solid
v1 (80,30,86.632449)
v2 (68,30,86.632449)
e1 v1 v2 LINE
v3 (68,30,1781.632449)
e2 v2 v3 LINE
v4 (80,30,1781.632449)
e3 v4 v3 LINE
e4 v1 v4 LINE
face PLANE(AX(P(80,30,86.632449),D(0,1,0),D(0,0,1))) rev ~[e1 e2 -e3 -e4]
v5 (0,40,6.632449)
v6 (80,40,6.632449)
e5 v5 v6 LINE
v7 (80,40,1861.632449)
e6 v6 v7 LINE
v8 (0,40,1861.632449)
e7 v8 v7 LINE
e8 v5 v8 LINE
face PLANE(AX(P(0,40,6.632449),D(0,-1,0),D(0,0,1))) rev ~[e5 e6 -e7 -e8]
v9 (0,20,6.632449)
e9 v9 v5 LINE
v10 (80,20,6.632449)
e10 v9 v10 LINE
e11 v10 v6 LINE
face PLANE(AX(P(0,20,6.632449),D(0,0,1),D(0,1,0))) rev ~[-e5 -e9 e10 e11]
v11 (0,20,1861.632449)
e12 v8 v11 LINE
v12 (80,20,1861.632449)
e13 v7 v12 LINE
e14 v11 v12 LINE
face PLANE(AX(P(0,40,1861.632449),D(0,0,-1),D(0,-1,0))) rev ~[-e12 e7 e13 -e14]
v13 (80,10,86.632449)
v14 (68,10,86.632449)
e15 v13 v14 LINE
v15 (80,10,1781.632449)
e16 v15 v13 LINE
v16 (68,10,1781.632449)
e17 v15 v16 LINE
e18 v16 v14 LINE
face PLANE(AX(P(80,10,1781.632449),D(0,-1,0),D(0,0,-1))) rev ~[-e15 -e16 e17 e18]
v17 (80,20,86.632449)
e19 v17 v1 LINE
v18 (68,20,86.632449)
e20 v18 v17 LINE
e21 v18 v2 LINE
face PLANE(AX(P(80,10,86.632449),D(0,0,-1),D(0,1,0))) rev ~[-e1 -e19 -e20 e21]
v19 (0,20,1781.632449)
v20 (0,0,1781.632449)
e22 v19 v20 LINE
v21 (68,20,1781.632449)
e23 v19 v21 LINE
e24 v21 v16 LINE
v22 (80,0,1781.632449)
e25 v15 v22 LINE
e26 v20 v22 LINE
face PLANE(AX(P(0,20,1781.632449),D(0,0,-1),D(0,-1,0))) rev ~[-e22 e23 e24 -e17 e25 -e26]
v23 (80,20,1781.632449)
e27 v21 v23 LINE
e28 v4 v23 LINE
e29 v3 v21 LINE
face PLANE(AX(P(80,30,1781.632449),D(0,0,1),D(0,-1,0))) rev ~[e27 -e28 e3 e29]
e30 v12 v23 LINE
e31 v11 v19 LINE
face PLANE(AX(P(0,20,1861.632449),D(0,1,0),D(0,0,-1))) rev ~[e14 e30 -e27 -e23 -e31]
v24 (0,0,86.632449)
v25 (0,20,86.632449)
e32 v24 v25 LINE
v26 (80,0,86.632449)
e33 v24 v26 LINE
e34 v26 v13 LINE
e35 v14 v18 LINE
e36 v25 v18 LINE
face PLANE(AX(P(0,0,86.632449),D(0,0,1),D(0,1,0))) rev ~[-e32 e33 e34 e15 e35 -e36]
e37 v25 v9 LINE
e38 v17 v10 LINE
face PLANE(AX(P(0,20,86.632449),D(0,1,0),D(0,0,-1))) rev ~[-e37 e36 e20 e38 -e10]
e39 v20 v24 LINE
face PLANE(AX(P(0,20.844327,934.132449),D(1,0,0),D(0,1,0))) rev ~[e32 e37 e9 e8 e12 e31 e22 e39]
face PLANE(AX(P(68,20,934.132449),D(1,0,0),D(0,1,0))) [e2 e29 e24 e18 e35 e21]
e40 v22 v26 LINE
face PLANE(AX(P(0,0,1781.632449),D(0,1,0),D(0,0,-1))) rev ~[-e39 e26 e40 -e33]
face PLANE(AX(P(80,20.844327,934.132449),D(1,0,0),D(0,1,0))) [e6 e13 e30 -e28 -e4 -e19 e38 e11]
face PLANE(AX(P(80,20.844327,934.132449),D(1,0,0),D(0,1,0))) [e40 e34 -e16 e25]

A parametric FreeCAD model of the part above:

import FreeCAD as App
import Part
import Sketcher
Q = App.Units.Quantity

doc = App.newDocument("Part")
params = doc.addObject("Spreadsheet::Sheet", "Params")
for row, (alias, value) in enumerate([
    ("sketch1_width", "20 mm"),
    ("sketch1_height", "80 mm"),
    ("sketch1_height2", "1855 mm"),
    ("pad1_length", "80 mm"),
    ("sketch2_width", "20 mm"),
    ("sketch2_height", "1695 mm"),
    ("pocket1_length", "12 mm"),
], start=1):
    params.set(f"A{row}", alias)
    params.set(f"B{row}", "=" + value)
    params.setAlias(f"B{row}", alias)

body = doc.addObject("PartDesign::Body", "Body")

sketch1 = body.newObject("Sketcher::SketchObject", "Sketch")
sketch1.AttachmentSupport = (doc.getObject("YZ_Plane"), [""])
sketch1.MapMode = "FlatFace"
sketch1.addGeometry([
    Part.LineSegment(App.Vector(20, 87, 0), App.Vector(20, 7, 0)),
    Part.LineSegment(App.Vector(20, 7, 0), App.Vector(40, 7, 0)),
    Part.LineSegment(App.Vector(40, 7, 0), App.Vector(40, 1862, 0)),
    Part.LineSegment(App.Vector(40, 1862, 0), App.Vector(20, 1862, 0)),
    Part.LineSegment(App.Vector(20, 1862, 0), App.Vector(20, 1782, 0)),
    Part.LineSegment(App.Vector(20, 1782, 0), App.Vector(0, 1782, 0)),
    Part.LineSegment(App.Vector(0, 1782, 0), App.Vector(0, 87, 0)),
    Part.LineSegment(App.Vector(0, 87, 0), App.Vector(20, 87, 0)),
], False)
sketch1.addConstraint([
    Sketcher.Constraint("Coincident", 0, 2, 1, 1),
    Sketcher.Constraint("Coincident", 1, 2, 2, 1),
    Sketcher.Constraint("Coincident", 2, 2, 3, 1),
    Sketcher.Constraint("Coincident", 3, 2, 4, 1),
    Sketcher.Constraint("Coincident", 4, 2, 5, 1),
    Sketcher.Constraint("Coincident", 5, 2, 6, 1),
    Sketcher.Constraint("Coincident", 6, 2, 7, 1),
    Sketcher.Constraint("Coincident", 7, 2, 0, 1),
    Sketcher.Constraint("Vertical", 0),
    Sketcher.Constraint("Horizontal", 1),
    Sketcher.Constraint("Vertical", 2),
    Sketcher.Constraint("Horizontal", 3),
    Sketcher.Constraint("Vertical", 4),
    Sketcher.Constraint("Horizontal", 5),
    Sketcher.Constraint("Vertical", 6),
    Sketcher.Constraint("Horizontal", 7),
    Sketcher.Constraint("PointOnObject", 5, 2, -2),
    Sketcher.Constraint("Vertical", 0, 2, 3, 2),
    Sketcher.Constraint("Equal", 3, 5),
    Sketcher.Constraint("Equal", 0, 4),
    Sketcher.Constraint("DistanceX", 1, 1, 1, 2, Q("20 mm")),
    Sketcher.Constraint("DistanceY", 0, 2, 0, 1, Q("80 mm")),
    Sketcher.Constraint("DistanceY", 2, 1, 2, 2, Q("1855 mm")),
    Sketcher.Constraint("DistanceY", -1, 1, 0, 2, Q("6.632449 mm")),
])
sketch1.setExpression("Constraints[20]", "Params.sketch1_width")
sketch1.setExpression("Constraints[21]", "Params.sketch1_height")
sketch1.setExpression("Constraints[22]", "Params.sketch1_height2")
pad1 = body.newObject("PartDesign::Pad", "Pad")
pad1.Profile = sketch1
pad1.setExpression("Length", "Params.pad1_length")

sketch2 = body.newObject("Sketcher::SketchObject", "Sketch001")
sketch2.AttachmentSupport = (doc.getObject("YZ_Plane"), [""])
sketch2.MapMode = "FlatFace"
sketch2.AttachmentOffset = App.Placement(App.Vector(0, 0, 80), App.Rotation())
sketch2.addGeometry([
    Part.LineSegment(App.Vector(10, 1782, 0), App.Vector(10, 87, 0)),
    Part.LineSegment(App.Vector(10, 87, 0), App.Vector(30, 87, 0)),
    Part.LineSegment(App.Vector(30, 87, 0), App.Vector(30, 1782, 0)),
    Part.LineSegment(App.Vector(30, 1782, 0), App.Vector(10, 1782, 0)),
], False)
sketch2.addConstraint([
    Sketcher.Constraint("Coincident", 0, 2, 1, 1),
    Sketcher.Constraint("Coincident", 1, 2, 2, 1),
    Sketcher.Constraint("Coincident", 2, 2, 3, 1),
    Sketcher.Constraint("Coincident", 3, 2, 0, 1),
    Sketcher.Constraint("Vertical", 0),
    Sketcher.Constraint("Horizontal", 1),
    Sketcher.Constraint("Vertical", 2),
    Sketcher.Constraint("Horizontal", 3),
    Sketcher.Constraint("DistanceX", 1, 1, 1, 2, Q("20 mm")),
    Sketcher.Constraint("DistanceY", 0, 2, 0, 1, Q("1695 mm")),
    Sketcher.Constraint("DistanceX", -1, 1, 0, 2, Q("10 mm")),
    Sketcher.Constraint("DistanceY", -1, 1, 0, 2, Q("86.632449 mm")),
])
sketch2.setExpression("Constraints[8]", "Params.sketch2_width")
sketch2.setExpression("Constraints[9]", "Params.sketch2_height")
pocket1 = body.newObject("PartDesign::Pocket", "Pocket")
pocket1.Profile = sketch2
pocket1.setExpression("Length", "Params.pocket1_length")

doc.recompute()
